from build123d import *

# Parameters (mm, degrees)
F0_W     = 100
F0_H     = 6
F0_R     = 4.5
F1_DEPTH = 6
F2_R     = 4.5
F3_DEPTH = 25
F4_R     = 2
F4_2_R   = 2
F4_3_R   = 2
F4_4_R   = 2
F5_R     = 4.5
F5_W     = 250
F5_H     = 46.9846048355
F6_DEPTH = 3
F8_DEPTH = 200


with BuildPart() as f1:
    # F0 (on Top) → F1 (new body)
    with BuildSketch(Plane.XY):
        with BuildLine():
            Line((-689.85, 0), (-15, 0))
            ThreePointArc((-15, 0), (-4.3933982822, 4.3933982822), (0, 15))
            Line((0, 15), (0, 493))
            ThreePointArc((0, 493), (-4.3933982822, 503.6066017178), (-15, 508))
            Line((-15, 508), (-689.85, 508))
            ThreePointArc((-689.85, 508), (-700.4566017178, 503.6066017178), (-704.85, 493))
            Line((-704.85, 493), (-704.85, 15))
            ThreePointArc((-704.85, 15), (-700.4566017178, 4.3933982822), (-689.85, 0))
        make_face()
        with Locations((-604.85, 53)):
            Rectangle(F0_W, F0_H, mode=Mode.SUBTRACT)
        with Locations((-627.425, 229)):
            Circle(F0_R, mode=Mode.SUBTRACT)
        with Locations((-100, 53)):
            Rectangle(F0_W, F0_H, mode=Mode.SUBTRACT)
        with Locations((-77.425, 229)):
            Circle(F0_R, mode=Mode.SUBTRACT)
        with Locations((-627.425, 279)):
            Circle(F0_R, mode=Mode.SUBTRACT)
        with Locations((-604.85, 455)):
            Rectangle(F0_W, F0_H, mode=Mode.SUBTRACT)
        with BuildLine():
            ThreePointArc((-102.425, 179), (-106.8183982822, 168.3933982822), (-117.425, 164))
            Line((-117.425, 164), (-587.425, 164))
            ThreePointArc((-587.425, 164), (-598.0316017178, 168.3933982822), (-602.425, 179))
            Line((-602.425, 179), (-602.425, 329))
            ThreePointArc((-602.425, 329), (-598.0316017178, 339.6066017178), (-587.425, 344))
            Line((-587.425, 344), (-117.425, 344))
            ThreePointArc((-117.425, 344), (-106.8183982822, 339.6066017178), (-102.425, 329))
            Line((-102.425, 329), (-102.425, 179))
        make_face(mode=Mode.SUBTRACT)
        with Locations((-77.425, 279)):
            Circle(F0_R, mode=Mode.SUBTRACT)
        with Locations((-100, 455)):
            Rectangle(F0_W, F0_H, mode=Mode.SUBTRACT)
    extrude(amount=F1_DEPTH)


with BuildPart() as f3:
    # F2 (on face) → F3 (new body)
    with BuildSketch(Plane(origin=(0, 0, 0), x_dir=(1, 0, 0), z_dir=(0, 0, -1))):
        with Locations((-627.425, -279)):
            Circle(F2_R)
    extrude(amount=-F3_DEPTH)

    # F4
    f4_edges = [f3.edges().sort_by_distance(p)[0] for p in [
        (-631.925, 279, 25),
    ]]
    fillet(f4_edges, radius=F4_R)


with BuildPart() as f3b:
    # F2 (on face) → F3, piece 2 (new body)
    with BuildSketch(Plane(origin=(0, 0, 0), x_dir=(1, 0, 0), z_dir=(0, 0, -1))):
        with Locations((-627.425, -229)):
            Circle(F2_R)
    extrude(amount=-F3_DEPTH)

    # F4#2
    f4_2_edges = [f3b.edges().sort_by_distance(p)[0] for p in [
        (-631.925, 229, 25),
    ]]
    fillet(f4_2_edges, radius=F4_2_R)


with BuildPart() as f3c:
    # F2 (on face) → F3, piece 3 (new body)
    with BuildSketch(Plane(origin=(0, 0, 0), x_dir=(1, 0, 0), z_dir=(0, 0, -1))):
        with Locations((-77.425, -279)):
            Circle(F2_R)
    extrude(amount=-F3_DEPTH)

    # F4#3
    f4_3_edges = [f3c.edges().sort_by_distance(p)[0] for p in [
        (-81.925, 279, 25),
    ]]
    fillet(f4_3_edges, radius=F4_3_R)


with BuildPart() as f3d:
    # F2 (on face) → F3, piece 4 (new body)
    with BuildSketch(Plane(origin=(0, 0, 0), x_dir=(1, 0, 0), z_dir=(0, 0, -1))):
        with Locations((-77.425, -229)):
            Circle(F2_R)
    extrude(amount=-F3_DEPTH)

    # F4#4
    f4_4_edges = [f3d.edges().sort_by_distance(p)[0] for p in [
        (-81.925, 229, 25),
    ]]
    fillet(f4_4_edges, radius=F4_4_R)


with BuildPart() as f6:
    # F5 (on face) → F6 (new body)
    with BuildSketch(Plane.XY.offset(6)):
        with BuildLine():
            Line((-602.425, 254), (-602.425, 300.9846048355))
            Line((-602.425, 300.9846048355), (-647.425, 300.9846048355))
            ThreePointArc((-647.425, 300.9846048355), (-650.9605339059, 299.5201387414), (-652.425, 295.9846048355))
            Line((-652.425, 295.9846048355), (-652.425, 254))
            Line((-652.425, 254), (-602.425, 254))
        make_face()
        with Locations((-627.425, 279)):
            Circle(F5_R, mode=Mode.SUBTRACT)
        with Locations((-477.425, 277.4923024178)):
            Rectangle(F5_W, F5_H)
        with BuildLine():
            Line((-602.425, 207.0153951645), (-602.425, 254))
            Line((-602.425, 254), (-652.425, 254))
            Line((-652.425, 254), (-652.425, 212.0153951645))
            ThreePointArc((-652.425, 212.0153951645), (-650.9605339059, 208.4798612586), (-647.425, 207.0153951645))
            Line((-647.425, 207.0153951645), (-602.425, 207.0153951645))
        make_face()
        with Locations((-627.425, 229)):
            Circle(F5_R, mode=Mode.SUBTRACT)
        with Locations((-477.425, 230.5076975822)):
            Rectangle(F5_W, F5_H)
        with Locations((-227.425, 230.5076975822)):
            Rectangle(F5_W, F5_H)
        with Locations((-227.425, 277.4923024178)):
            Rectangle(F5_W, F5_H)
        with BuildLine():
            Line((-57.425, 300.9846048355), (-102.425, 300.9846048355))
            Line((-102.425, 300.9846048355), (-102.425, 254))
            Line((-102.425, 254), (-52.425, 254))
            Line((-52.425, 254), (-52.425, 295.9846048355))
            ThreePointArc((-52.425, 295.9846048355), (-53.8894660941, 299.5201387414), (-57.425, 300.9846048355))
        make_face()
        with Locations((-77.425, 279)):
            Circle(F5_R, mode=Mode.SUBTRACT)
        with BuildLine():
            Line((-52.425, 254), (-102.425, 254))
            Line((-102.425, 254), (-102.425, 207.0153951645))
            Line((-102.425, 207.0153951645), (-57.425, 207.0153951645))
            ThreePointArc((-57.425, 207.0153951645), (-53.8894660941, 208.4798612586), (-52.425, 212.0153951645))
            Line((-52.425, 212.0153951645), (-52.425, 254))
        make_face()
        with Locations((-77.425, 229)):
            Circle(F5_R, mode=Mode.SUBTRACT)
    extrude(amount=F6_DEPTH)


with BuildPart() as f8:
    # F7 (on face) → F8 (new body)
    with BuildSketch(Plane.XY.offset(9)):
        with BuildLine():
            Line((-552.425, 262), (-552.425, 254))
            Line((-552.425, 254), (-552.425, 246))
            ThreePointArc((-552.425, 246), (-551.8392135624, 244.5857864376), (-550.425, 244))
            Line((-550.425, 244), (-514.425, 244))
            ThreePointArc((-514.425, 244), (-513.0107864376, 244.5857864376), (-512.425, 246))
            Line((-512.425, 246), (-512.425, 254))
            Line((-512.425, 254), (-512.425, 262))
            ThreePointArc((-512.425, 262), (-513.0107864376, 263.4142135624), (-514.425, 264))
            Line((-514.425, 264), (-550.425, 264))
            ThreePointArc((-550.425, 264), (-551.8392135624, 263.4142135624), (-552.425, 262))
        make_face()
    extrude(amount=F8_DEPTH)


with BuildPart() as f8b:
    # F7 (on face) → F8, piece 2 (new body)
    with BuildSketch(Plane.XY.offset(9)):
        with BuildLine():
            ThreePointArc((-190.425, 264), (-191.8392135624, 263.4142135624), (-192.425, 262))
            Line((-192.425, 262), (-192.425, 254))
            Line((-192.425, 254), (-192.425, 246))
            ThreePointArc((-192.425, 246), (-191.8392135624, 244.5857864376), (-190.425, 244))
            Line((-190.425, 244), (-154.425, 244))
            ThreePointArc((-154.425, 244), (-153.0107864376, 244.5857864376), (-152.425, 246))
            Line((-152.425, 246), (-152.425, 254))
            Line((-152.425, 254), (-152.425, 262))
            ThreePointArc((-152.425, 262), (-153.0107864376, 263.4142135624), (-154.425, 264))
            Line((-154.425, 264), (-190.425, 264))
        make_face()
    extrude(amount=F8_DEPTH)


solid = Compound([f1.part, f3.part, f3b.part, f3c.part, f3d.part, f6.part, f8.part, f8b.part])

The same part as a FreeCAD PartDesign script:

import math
import FreeCAD as App
import Part
import Sketcher
from FreeCAD import Vector


def edges_at(feature, points):
    """Names of the edges that pass closest to the given points."""
    edges = feature.Shape.Edges
    near = lambda p: min(range(len(edges)), key=lambda i: edges[i].distToShape(Part.Vertex(*p))[0])
    return sorted({f"Edge{near(p) + 1}" for p in points})


def add_polygon(sketch, points):
    """Adds a closed chain of lines whose ends are joined by coincident constraints."""
    first, n = sketch.GeometryCount, len(points)
    for a, b in zip(points, points[1:] + points[:1]):
        sketch.addGeometry(Part.LineSegment(App.Vector(*a, 0), App.Vector(*b, 0)), False)
    for i in range(n):
        sketch.addConstraint(Sketcher.Constraint("Coincident", first + i, 2, first + (i + 1) % n, 1))

doc = App.newDocument("Part")
body = doc.addObject("PartDesign::Body", "Body")

# Sketch on XY plane
sketch1 = doc.addObject("Sketcher::SketchObject", "Sketch")
body.addObject(sketch1)
sketch1.AttachmentSupport = (doc.XY_Plane, [""])
sketch1.MapMode = "FlatFace"
sketch1.addGeometry(Part.LineSegment(Vector(-689.9, 0, 0), Vector(-15, 0, 0)), False)  # 0
sketch1.addGeometry(Part.ArcOfCircle(Part.Circle(Vector(-15, 15, 0), Vector(0, 0, 1), 15), math.radians(-90), math.radians(0)), False)  # 1
sketch1.addGeometry(Part.LineSegment(Vector(0, 15, 0), Vector(0, 493, 0)), False)  # 2
sketch1.addGeometry(Part.ArcOfCircle(Part.Circle(Vector(-15, 493, 0), Vector(0, 0, 1), 15), math.radians(0), math.radians(90)), False)  # 3
sketch1.addGeometry(Part.LineSegment(Vector(-15, 508, 0), Vector(-689.9, 508, 0)), False)  # 4
sketch1.addGeometry(Part.ArcOfCircle(Part.Circle(Vector(-689.9, 493, 0), Vector(0, 0, 1), 15), math.radians(90), math.radians(180)), False)  # 5
sketch1.addGeometry(Part.LineSegment(Vector(-704.9, 493, 0), Vector(-704.9, 15, 0)), False)  # 6
sketch1.addGeometry(Part.ArcOfCircle(Part.Circle(Vector(-689.9, 15, 0), Vector(0, 0, 1), 15), math.radians(180), math.radians(270)), False)  # 7
add_polygon(sketch1, [(-554.9, 50), (-654.9, 50), (-654.9, 56), (-554.9, 56)])  # lines 8-11
sketch1.addGeometry(Part.Circle(Vector(-627.4, 229, 0), Vector(0, 0, 1), 4.5), False)  # 12
add_polygon(sketch1, [(-50, 50), (-150, 50), (-150, 56), (-50, 56)])  # lines 13-16
sketch1.addGeometry(Part.Circle(Vector(-77.4, 229, 0), Vector(0, 0, 1), 4.5), False)  # 17
sketch1.addGeometry(Part.Circle(Vector(-627.4, 279, 0), Vector(0, 0, 1), 4.5), False)  # 18
add_polygon(sketch1, [(-554.9, 452), (-654.9, 452), (-654.9, 458), (-554.9, 458)])  # lines 19-22
sketch1.addGeometry(Part.LineSegment(Vector(-102.4, 329, 0), Vector(-102.4, 179, 0)), False)  # 23
sketch1.addGeometry(Part.ArcOfCircle(Part.Circle(Vector(-117.4, 179, 0), Vector(0, 0, 1), 15), math.radians(-90), math.radians(0)), False)  # 24
sketch1.addGeometry(Part.LineSegment(Vector(-117.4, 164, 0), Vector(-587.4, 164, 0)), False)  # 25
sketch1.addGeometry(Part.ArcOfCircle(Part.Circle(Vector(-587.4, 179, 0), Vector(0, 0, 1), 15), math.radians(180), math.radians(270)), False)  # 26
sketch1.addGeometry(Part.LineSegment(Vector(-602.4, 179, 0), Vector(-602.4, 329, 0)), False)  # 27
sketch1.addGeometry(Part.ArcOfCircle(Part.Circle(Vector(-587.4, 329, 0), Vector(0, 0, 1), 15), math.radians(90), math.radians(180)), False)  # 28
sketch1.addGeometry(Part.LineSegment(Vector(-587.4, 344, 0), Vector(-117.4, 344, 0)), False)  # 29
sketch1.addGeometry(Part.ArcOfCircle(Part.Circle(Vector(-117.4, 329, 0), Vector(0, 0, 1), 15), math.radians(0), math.radians(90)), False)  # 30
sketch1.addGeometry(Part.Circle(Vector(-77.4, 279, 0), Vector(0, 0, 1), 4.5), False)  # 31
add_polygon(sketch1, [(-50, 452), (-150, 452), (-150, 458), (-50, 458)])  # lines 32-35
sketch1.addConstraint([
    Sketcher.Constraint("Tangent", 0, 2, 1, 1),
    Sketcher.Constraint("Tangent", 1, 2, 2, 1),
    Sketcher.Constraint("Tangent", 2, 2, 3, 1),
    Sketcher.Constraint("Tangent", 3, 2, 4, 1),
    Sketcher.Constraint("Tangent", 4, 2, 5, 1),
    Sketcher.Constraint("Tangent", 5, 2, 6, 1),
    Sketcher.Constraint("Tangent", 6, 2, 7, 1),
    Sketcher.Constraint("Tangent", 7, 2, 0, 1),
    Sketcher.Constraint("Tangent", 23, 2, 24, 2),
    Sketcher.Constraint("Tangent", 24, 1, 25, 1),
    Sketcher.Constraint("Tangent", 25, 2, 26, 2),
    Sketcher.Constraint("Tangent", 26, 1, 27, 1),
    Sketcher.Constraint("Tangent", 27, 2, 28, 2),
    Sketcher.Constraint("Tangent", 28, 1, 29, 1),
    Sketcher.Constraint("Tangent", 29, 2, 30, 2),
    Sketcher.Constraint("Tangent", 30, 1, 23, 1),
    Sketcher.Constraint("Horizontal", 0),
    Sketcher.Constraint("Vertical", 2),
    Sketcher.Constraint("Horizontal", 4),
    Sketcher.Constraint("Vertical", 6),
    Sketcher.Constraint("Horizontal", 8),
    Sketcher.Constraint("Vertical", 9),
    Sketcher.Constraint("Horizontal", 10),
    Sketcher.Constraint("Vertical", 11),
    Sketcher.Constraint("Horizontal", 13),
    Sketcher.Constraint("Vertical", 14),
    Sketcher.Constraint("Horizontal", 15),
    Sketcher.Constraint("Vertical", 16),
    Sketcher.Constraint("Horizontal", 19),
    Sketcher.Constraint("Vertical", 20),
    Sketcher.Constraint("Horizontal", 21),
    Sketcher.Constraint("Vertical", 22),
    Sketcher.Constraint("Vertical", 23),
    Sketcher.Constraint("Horizontal", 25),
    Sketcher.Constraint("Vertical", 27),
    Sketcher.Constraint("Horizontal", 29),
    Sketcher.Constraint("Horizontal", 32),
    Sketcher.Constraint("Vertical", 33),
    Sketcher.Constraint("Horizontal", 34),
    Sketcher.Constraint("Vertical", 35),
    Sketcher.Constraint("Equal", 1, 3),
    Sketcher.Constraint("Equal", 3, 5),
    Sketcher.Constraint("Equal", 5, 7),
    Sketcher.Constraint("Equal", 12, 17),
    Sketcher.Constraint("Equal", 17, 18),
    Sketcher.Constraint("Equal", 7, 24),
    Sketcher.Constraint("Equal", 24, 26),
    Sketcher.Constraint("Equal", 26, 28),
    Sketcher.Constraint("Equal", 28, 30),
    Sketcher.Constraint("Equal", 18, 31),
    Sketcher.Constraint("PointOnObject", 0, 2, -1),
    Sketcher.Constraint("PointOnObject", 1, 2, -2),
    Sketcher.Constraint("Horizontal", 12, 3, 17, 3),
    Sketcher.Constraint("Horizontal", 18, 3, 31, 3),
    Sketcher.Constraint("Horizontal", 11, 2, 13, 2),
    Sketcher.Constraint("Horizontal", 10, 2, 14, 2),
    Sketcher.Constraint("Horizontal", 22, 2, 32, 2),
    Sketcher.Constraint("Horizontal", 21, 2, 33, 2),
    Sketcher.Constraint("Vertical", 12, 3, 18, 3),
    Sketcher.Constraint("Vertical", 17, 3, 31, 3),
    Sketcher.Constraint("Vertical", 9, 2, 19, 2),
    Sketcher.Constraint("Vertical", 11, 2, 21, 2),
    Sketcher.Constraint("Vertical", 14, 2, 32, 2),
    Sketcher.Constraint("Vertical", 16, 2, 34, 2),
    Sketcher.Constraint("Equal", 10, 13),
    Sketcher.Constraint("Equal", 16, 20),
    Sketcher.Constraint("Diameter", 12, 9.0),
    Sketcher.Constraint("Radius", 1, 15.0),
    Sketcher.Constraint("DistanceX", 8, 2, 8, 1, 100.0),
    Sketcher.Constraint("DistanceX", 25, 2, 25, 1, 470.0),
    Sketcher.Constraint("DistanceY", 2, 1, 2, 2, 478.0),
    Sketcher.Constraint("DistanceY", 9, 1, 9, 2, 6.0),
    Sketcher.Constraint("DistanceY", 23, 2, 23, 1, 150.0),
    Sketcher.Constraint("DistanceY", -1, 1, 12, 3, 229.0),
    Sketcher.Constraint("DistanceY", -1, 1, 18, 3, 279.0),
    Sketcher.Constraint("DistanceY", -1, 1, 24, 3, 179.0),
    Sketcher.Constraint("DistanceY", -1, 1, 8, 2, 50.0),
    Sketcher.Constraint("DistanceX", 13, 2, -1, 1, 150.0),
    Sketcher.Constraint("DistanceY", -1, 1, 19, 2, 452.0),
    Sketcher.Constraint("DistanceX", 12, 3, 17, 3, 550.0),
    Sketcher.Constraint("DistanceX", 24, 3, 17, 3, 40.0),
    Sketcher.Constraint("DistanceX", 7, 3, 8, 2, 35.0),
    Sketcher.Constraint("DistanceX", 0, 1, 0, 2, 674.85),
    Sketcher.Constraint("DistanceX", 12, 3, -1, 1, 627.425),
])
pad1 = doc.addObject("PartDesign::Pad", "Pad")
body.addObject(pad1)
pad1.Profile = sketch1
pad1.Length = 6
body2 = doc.addObject("PartDesign::Body", "Body001")

# Sketch on XY plane
sketch2 = doc.addObject("Sketcher::SketchObject", "Sketch001")
body2.addObject(sketch2)
sketch2.AttachmentSupport = (doc.getObject("XY_Plane001"), [""])
sketch2.MapMode = "FlatFace"
sketch2.addGeometry(Part.Circle(Vector(-627.4, 279, 0), Vector(0, 0, 1), 4.5), False)
sketch2.addConstraint([
    Sketcher.Constraint("Diameter", 0, 9.0),
    Sketcher.Constraint("DistanceY", -1, 1, 0, 3, 279.0),
    Sketcher.Constraint("DistanceX", 0, 3, -1, 1, 627.425),
])
pad2 = doc.addObject("PartDesign::Pad", "Pad001")
body2.addObject(pad2)
pad2.Profile = sketch2
pad2.Length = 25
doc.recompute()

fillet = doc.addObject("PartDesign::Fillet", "Fillet")
body2.addObject(fillet)
fillet.Base = (pad2, edges_at(pad2, [(-631.925, 279, 25)]))
fillet.Radius = 2
body3 = doc.addObject("PartDesign::Body", "Body002")

# Sketch on XY plane
sketch3 = doc.addObject("Sketcher::SketchObject", "Sketch002")
body3.addObject(sketch3)
sketch3.AttachmentSupport = (doc.getObject("XY_Plane002"), [""])
sketch3.MapMode = "FlatFace"
sketch3.addGeometry(Part.Circle(Vector(-627.4, 229, 0), Vector(0, 0, 1), 4.5), False)
sketch3.addConstraint([
    Sketcher.Constraint("Diameter", 0, 9.0),
    Sketcher.Constraint("DistanceY", -1, 1, 0, 3, 229.0),
    Sketcher.Constraint("DistanceX", 0, 3, -1, 1, 627.425),
])
pad3 = doc.addObject("PartDesign::Pad", "Pad002")
body3.addObject(pad3)
pad3.Profile = sketch3
pad3.Length = 25
doc.recompute()

fillet2 = doc.addObject("PartDesign::Fillet", "Fillet001")
body3.addObject(fillet2)
fillet2.Base = (pad3, edges_at(pad3, [(-631.925, 229, 25)]))
fillet2.Radius = 2
body4 = doc.addObject("PartDesign::Body", "Body003")

# Sketch on XY plane
sketch4 = doc.addObject("Sketcher::SketchObject", "Sketch003")
body4.addObject(sketch4)
sketch4.AttachmentSupport = (doc.getObject("XY_Plane003"), [""])
sketch4.MapMode = "FlatFace"
sketch4.addGeometry(Part.Circle(Vector(-77.4, 279, 0), Vector(0, 0, 1), 4.5), False)
sketch4.addConstraint([
    Sketcher.Constraint("Diameter", 0, 9.0),
    Sketcher.Constraint("DistanceY", -1, 1, 0, 3, 279.0),
    Sketcher.Constraint("DistanceX", 0, 3, -1, 1, 77.425),
])
pad4 = doc.addObject("PartDesign::Pad", "Pad003")
body4.addObject(pad4)
pad4.Profile = sketch4
pad4.Length = 25
doc.recompute()

fillet3 = doc.addObject("PartDesign::Fillet", "Fillet002")
body4.addObject(fillet3)
fillet3.Base = (pad4, edges_at(pad4, [(-81.925, 279, 25)]))
fillet3.Radius = 2
body5 = doc.addObject("PartDesign::Body", "Body004")

# Sketch on XY plane
sketch5 = doc.addObject("Sketcher::SketchObject", "Sketch004")
body5.addObject(sketch5)
sketch5.AttachmentSupport = (doc.getObject("XY_Plane004"), [""])
sketch5.MapMode = "FlatFace"
sketch5.addGeometry(Part.Circle(Vector(-77.4, 229, 0), Vector(0, 0, 1), 4.5), False)
sketch5.addConstraint([
    Sketcher.Constraint("Diameter", 0, 9.0),
    Sketcher.Constraint("DistanceY", -1, 1, 0, 3, 229.0),
    Sketcher.Constraint("DistanceX", 0, 3, -1, 1, 77.425),
])
pad5 = doc.addObject("PartDesign::Pad", "Pad004")
body5.addObject(pad5)
pad5.Profile = sketch5
pad5.Length = 25
doc.recompute()

fillet4 = doc.addObject("PartDesign::Fillet", "Fillet003")
body5.addObject(fillet4)
fillet4.Base = (pad5, edges_at(pad5, [(-81.925, 229, 25)]))
fillet4.Radius = 2
body6 = doc.addObject("PartDesign::Body", "Body005")

# Sketch on XY plane
sketch6 = doc.addObject("Sketcher::SketchObject", "Sketch005")
body6.addObject(sketch6)
sketch6.AttachmentSupport = (doc.getObject("XY_Plane005"), [""])
sketch6.MapMode = "FlatFace"
sketch6.AttachmentOffset = App.Placement(Vector(0, 0, 6), App.Rotation())
sketch6.addGeometry([
    Part.ArcOfCircle(Part.Circle(Vector(-647.4, 296, 0), Vector(0, 0, 1), 5), math.radians(90), math.radians(180)),  # 0
    Part.LineSegment(Vector(-652.4, 296, 0), Vector(-652.4, 212, 0)),  # 1
    Part.ArcOfCircle(Part.Circle(Vector(-647.4, 212, 0), Vector(0, 0, 1), 5), math.radians(180), math.radians(270)),  # 2
    Part.LineSegment(Vector(-647.4, 207, 0), Vector(-57.4, 207, 0)),  # 3
    Part.ArcOfCircle(Part.Circle(Vector(-57.4, 212, 0), Vector(0, 0, 1), 5), math.radians(-90), math.radians(0)),  # 4
    Part.LineSegment(Vector(-52.4, 212, 0), Vector(-52.4, 296, 0)),  # 5
    Part.ArcOfCircle(Part.Circle(Vector(-57.4, 296, 0), Vector(0, 0, 1), 5), math.radians(0), math.radians(90)),  # 6
    Part.LineSegment(Vector(-57.4, 301, 0), Vector(-647.4, 301, 0)),  # 7
    Part.Circle(Vector(-627.4, 229, 0), Vector(0, 0, 1), 4.5),  # 8
    Part.Circle(Vector(-77.4, 229, 0), Vector(0, 0, 1), 4.5),  # 9
    Part.Circle(Vector(-627.4, 279, 0), Vector(0, 0, 1), 4.5),  # 10
    Part.Circle(Vector(-77.4, 279, 0), Vector(0, 0, 1), 4.5),  # 11
], False)
sketch6.addConstraint([
    Sketcher.Constraint("Tangent", 0, 2, 1, 1),
    Sketcher.Constraint("Tangent", 1, 2, 2, 1),
    Sketcher.Constraint("Tangent", 2, 2, 3, 1),
    Sketcher.Constraint("Tangent", 3, 2, 4, 1),
    Sketcher.Constraint("Tangent", 4, 2, 5, 1),
    Sketcher.Constraint("Tangent", 5, 2, 6, 1),
    Sketcher.Constraint("Tangent", 6, 2, 7, 1),
    Sketcher.Constraint("Tangent", 7, 2, 0, 1),
    Sketcher.Constraint("Vertical", 1),
    Sketcher.Constraint("Horizontal", 3),
    Sketcher.Constraint("Vertical", 5),
    Sketcher.Constraint("Horizontal", 7),
    Sketcher.Constraint("Equal", 0, 2),
    Sketcher.Constraint("Equal", 2, 4),
    Sketcher.Constraint("Equal", 4, 6),
    Sketcher.Constraint("Equal", 8, 9),
    Sketcher.Constraint("Equal", 9, 10),
    Sketcher.Constraint("Equal", 10, 11),
    Sketcher.Constraint("Horizontal", 8, 3, 9, 3),
    Sketcher.Constraint("Horizontal", 10, 3, 11, 3),
    Sketcher.Constraint("Vertical", 8, 3, 10, 3),
    Sketcher.Constraint("Vertical", 9, 3, 11, 3),
    Sketcher.Constraint("Diameter", 8, 9.0),
    Sketcher.Constraint("Radius", 0, 5.0),
    Sketcher.Constraint("DistanceX", 3, 1, 3, 2, 590.0),
    Sketcher.Constraint("DistanceY", -1, 1, 8, 3, 229.0),
    Sketcher.Constraint("DistanceY", -1, 1, 10, 3, 279.0),
    Sketcher.Constraint("DistanceX", 2, 3, 8, 3, 20.0),
    Sketcher.Constraint("DistanceX", 9, 3, 4, 3, 20.0),
    Sketcher.Constraint("DistanceX", 0, 3, -1, 1, 647.425),
    Sketcher.Constraint("DistanceY", 1, 2, 1, 1, 83.96921),
    Sketcher.Constraint("DistanceY", -1, 1, 0, 3, 295.984605),
])
pad6 = doc.addObject("PartDesign::Pad", "Pad005")
body6.addObject(pad6)
pad6.Profile = sketch6
pad6.Length = 3
body7 = doc.addObject("PartDesign::Body", "Body006")

# Sketch on XY plane
sketch7 = doc.addObject("Sketcher::SketchObject", "Sketch006")
body7.addObject(sketch7)
sketch7.AttachmentSupport = (doc.getObject("XY_Plane006"), [""])
sketch7.MapMode = "FlatFace"
sketch7.AttachmentOffset = App.Placement(Vector(0, 0, 9), App.Rotation())
sketch7.addGeometry([
    Part.LineSegment(Vector(-552.4, 262, 0), Vector(-552.4, 246, 0)),  # 0
    Part.ArcOfCircle(Part.Circle(Vector(-550.4, 246, 0), Vector(0, 0, 1), 2), math.radians(180), math.radians(270)),  # 1
    Part.LineSegment(Vector(-550.4, 244, 0), Vector(-514.4, 244, 0)),  # 2
    Part.ArcOfCircle(Part.Circle(Vector(-514.4, 246, 0), Vector(0, 0, 1), 2), math.radians(-90), math.radians(0)),  # 3
    Part.LineSegment(Vector(-512.4, 246, 0), Vector(-512.4, 262, 0)),  # 4
    Part.ArcOfCircle(Part.Circle(Vector(-514.4, 262, 0), Vector(0, 0, 1), 2), math.radians(0), math.radians(90)),  # 5
    Part.LineSegment(Vector(-514.4, 264, 0), Vector(-550.4, 264, 0)),  # 6
    Part.ArcOfCircle(Part.Circle(Vector(-550.4, 262, 0), Vector(0, 0, 1), 2), math.radians(90), math.radians(180)),  # 7
], False)
sketch7.addConstraint([
    Sketcher.Constraint("Tangent", 0, 2, 1, 1),
    Sketcher.Constraint("Tangent", 1, 2, 2, 1),
    Sketcher.Constraint("Tangent", 2, 2, 3, 1),
    Sketcher.Constraint("Tangent", 3, 2, 4, 1),
    Sketcher.Constraint("Tangent", 4, 2, 5, 1),
    Sketcher.Constraint("Tangent", 5, 2, 6, 1),
    Sketcher.Constraint("Tangent", 6, 2, 7, 1),
    Sketcher.Constraint("Tangent", 7, 2, 0, 1),
    Sketcher.Constraint("Vertical", 0),
    Sketcher.Constraint("Horizontal", 2),
    Sketcher.Constraint("Vertical", 4),
    Sketcher.Constraint("Horizontal", 6),
    Sketcher.Constraint("Equal", 1, 3),
    Sketcher.Constraint("Equal", 3, 5),
    Sketcher.Constraint("Equal", 5, 7),
    Sketcher.Constraint("Radius", 1, 2.0),
    Sketcher.Constraint("DistanceX", 2, 1, 2, 2, 36.0),
    Sketcher.Constraint("DistanceY", 0, 2, 0, 1, 16.0),
    Sketcher.Constraint("DistanceY", -1, 1, 1, 3, 246.0),
    Sketcher.Constraint("DistanceX", 1, 3, -1, 1, 550.425),
])
pad7 = doc.addObject("PartDesign::Pad", "Pad006")
body7.addObject(pad7)
pad7.Profile = sketch7
pad7.Length = 200
body8 = doc.addObject("PartDesign::Body", "Body007")

# Sketch on XY plane
sketch8 = doc.addObject("Sketcher::SketchObject", "Sketch007")
body8.addObject(sketch8)
sketch8.AttachmentSupport = (doc.getObject("XY_Plane007"), [""])
sketch8.MapMode = "FlatFace"
sketch8.AttachmentOffset = App.Placement(Vector(0, 0, 9), App.Rotation())
sketch8.addGeometry([
    Part.ArcOfCircle(Part.Circle(Vector(-190.4, 262, 0), Vector(0, 0, 1), 2), math.radians(90), math.radians(180)),  # 0
    Part.LineSegment(Vector(-192.4, 262, 0), Vector(-192.4, 246, 0)),  # 1
    Part.ArcOfCircle(Part.Circle(Vector(-190.4, 246, 0), Vector(0, 0, 1), 2), math.radians(180), math.radians(270)),  # 2
    Part.LineSegment(Vector(-190.4, 244, 0), Vector(-154.4, 244, 0)),  # 3
    Part.ArcOfCircle(Part.Circle(Vector(-154.4, 246, 0), Vector(0, 0, 1), 2), math.radians(-90), math.radians(0)),  # 4
    Part.LineSegment(Vector(-152.4, 246, 0), Vector(-152.4, 262, 0)),  # 5
    Part.ArcOfCircle(Part.Circle(Vector(-154.4, 262, 0), Vector(0, 0, 1), 2), math.radians(0), math.radians(90)),  # 6
    Part.LineSegment(Vector(-154.4, 264, 0), Vector(-190.4, 264, 0)),  # 7
], False)
sketch8.addConstraint([
    Sketcher.Constraint("Tangent", 0, 2, 1, 1),
    Sketcher.Constraint("Tangent", 1, 2, 2, 1),
    Sketcher.Constraint("Tangent", 2, 2, 3, 1),
    Sketcher.Constraint("Tangent", 3, 2, 4, 1),
    Sketcher.Constraint("Tangent", 4, 2, 5, 1),
    Sketcher.Constraint("Tangent", 5, 2, 6, 1),
    Sketcher.Constraint("Tangent", 6, 2, 7, 1),
    Sketcher.Constraint("Tangent", 7, 2, 0, 1),
    Sketcher.Constraint("Vertical", 1),
    Sketcher.Constraint("Horizontal", 3),
    Sketcher.Constraint("Vertical", 5),
    Sketcher.Constraint("Horizontal", 7),
    Sketcher.Constraint("Equal", 0, 2),
    Sketcher.Constraint("Equal", 2, 4),
    Sketcher.Constraint("Equal", 4, 6),
    Sketcher.Constraint("Radius", 0, 2.0),
    Sketcher.Constraint("DistanceX", 3, 1, 3, 2, 36.0),
    Sketcher.Constraint("DistanceY", 1, 2, 1, 1, 16.0),
    Sketcher.Constraint("DistanceY", -1, 1, 0, 3, 262.0),
    Sketcher.Constraint("DistanceX", 0, 3, -1, 1, 190.425),
])
pad8 = doc.addObject("PartDesign::Pad", "Pad007")
body8.addObject(pad8)
pad8.Profile = sketch8
pad8.Length = 200

doc.recompute()
